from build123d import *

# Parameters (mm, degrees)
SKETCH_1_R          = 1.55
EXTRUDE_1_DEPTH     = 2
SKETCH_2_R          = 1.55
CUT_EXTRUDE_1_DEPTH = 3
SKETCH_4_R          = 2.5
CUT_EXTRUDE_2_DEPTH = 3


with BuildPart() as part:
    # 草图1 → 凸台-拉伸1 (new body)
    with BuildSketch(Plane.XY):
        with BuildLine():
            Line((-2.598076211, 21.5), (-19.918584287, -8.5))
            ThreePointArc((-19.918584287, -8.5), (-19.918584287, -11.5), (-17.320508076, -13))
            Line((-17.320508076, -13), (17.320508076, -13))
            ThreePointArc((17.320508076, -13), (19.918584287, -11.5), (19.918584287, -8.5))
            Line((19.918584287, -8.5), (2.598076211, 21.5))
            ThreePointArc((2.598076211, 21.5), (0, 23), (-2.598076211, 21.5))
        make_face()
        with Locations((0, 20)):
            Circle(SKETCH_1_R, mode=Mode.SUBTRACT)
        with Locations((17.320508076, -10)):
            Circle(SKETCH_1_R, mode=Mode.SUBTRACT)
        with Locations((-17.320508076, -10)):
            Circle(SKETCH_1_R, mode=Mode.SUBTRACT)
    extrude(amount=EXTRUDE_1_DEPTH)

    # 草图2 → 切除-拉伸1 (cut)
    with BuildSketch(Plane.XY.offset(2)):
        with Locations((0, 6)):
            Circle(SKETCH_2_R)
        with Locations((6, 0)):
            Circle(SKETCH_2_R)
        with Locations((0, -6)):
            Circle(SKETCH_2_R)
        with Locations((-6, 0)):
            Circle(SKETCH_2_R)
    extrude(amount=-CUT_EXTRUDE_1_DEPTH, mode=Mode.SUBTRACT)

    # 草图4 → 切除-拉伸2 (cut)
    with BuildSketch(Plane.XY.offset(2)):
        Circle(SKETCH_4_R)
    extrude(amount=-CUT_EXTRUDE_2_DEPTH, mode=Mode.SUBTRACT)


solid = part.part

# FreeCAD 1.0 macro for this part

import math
import FreeCAD as App
import Part
import Sketcher
from FreeCAD import Vector
Q = App.Units.Quantity

doc = App.newDocument("Part")
body = doc.addObject("PartDesign::Body", "Body")

sketch1 = body.newObject("Sketcher::SketchObject", "Sketch")
sketch1.AttachmentSupport = (doc.getObject("XY_Plane"), [""])
sketch1.MapMode = "FlatFace"
sketch1.addGeometry(Part.LineSegment(Vector(-2.598076, 21.5, 0), Vector(-19.918584, -8.5, 0)), False)
sketch1.addGeometry(Part.ArcOfCircle(Part.Circle(Vector(-17.320508, -10, 0), Vector(0, 0, 1), 3), math.radians(150), math.radians(270)), False)
sketch1.addGeometry(Part.LineSegment(Vector(-17.320508, -13, 0), Vector(17.320508, -13, 0)), False)
sketch1.addGeometry(Part.ArcOfCircle(Part.Circle(Vector(17.320508, -10, 0), Vector(0, 0, 1), 3), math.radians(-90), math.radians(30)), False)
sketch1.addGeometry(Part.LineSegment(Vector(19.918584, -8.5, 0), Vector(2.598076, 21.5, 0)), False)
sketch1.addGeometry(Part.ArcOfCircle(Part.Circle(Vector(0, 20, 0), Vector(0, 0, 1), 3), math.radians(30), math.radians(150)), False)
sketch1.addGeometry(Part.Circle(Vector(-17.320508, -10, 0), Vector(0, 0, 1), 1.55), False)
sketch1.addGeometry(Part.Circle(Vector(17.320508, -10, 0), Vector(0, 0, 1), 1.55), False)
sketch1.addGeometry(Part.Circle(Vector(0, 20, 0), Vector(0, 0, 1), 1.55), False)
sketch1.addConstraint(Sketcher.Constraint("Tangent", 0, 2, 1, 1))
sketch1.addConstraint(Sketcher.Constraint("Tangent", 1, 2, 2, 1))
sketch1.addConstraint(Sketcher.Constraint("Tangent", 2, 2, 3, 1))
sketch1.addConstraint(Sketcher.Constraint("Tangent", 3, 2, 4, 1))
sketch1.addConstraint(Sketcher.Constraint("Tangent", 4, 2, 5, 1))
sketch1.addConstraint(Sketcher.Constraint("Tangent", 5, 2, 0, 1))
sketch1.addConstraint(Sketcher.Constraint("Horizontal", 2))
sketch1.addConstraint(Sketcher.Constraint("Coincident", 6, 3, 1, 3))
sketch1.addConstraint(Sketcher.Constraint("Coincident", 7, 3, 3, 3))
sketch1.addConstraint(Sketcher.Constraint("Coincident", 8, 3, 5, 3))
sketch1.addConstraint(Sketcher.Constraint("Equal", 1, 3))
sketch1.addConstraint(Sketcher.Constraint("Equal", 3, 5))
sketch1.addConstraint(Sketcher.Constraint("Equal", 6, 7))
sketch1.addConstraint(Sketcher.Constraint("Equal", 7, 8))
sketch1.addConstraint(Sketcher.Constraint("Symmetric", 0, 2, 3, 2, -2))
sketch1.addConstraint(Sketcher.Constraint("Radius", 1, 3.0))
sketch1.addConstraint(Sketcher.Constraint("Diameter", 6, 3.1))
sketch1.addConstraint(Sketcher.Constraint("Angle", 0, Q("-120 deg")))
sketch1.addConstraint(Sketcher.Constraint("DistanceY", 1, 3, -1, 1, 10.0))
sketch1.addConstraint(Sketcher.Constraint("DistanceY", -1, 1, 5, 3, 20.0))
pad1 = body.newObject("PartDesign::Pad", "Pad")
pad1.Profile = sketch1
pad1.Length = 2

sketch2 = body.newObject("Sketcher::SketchObject", "Sketch001")
sketch2.AttachmentSupport = (doc.getObject("XY_Plane"), [""])
sketch2.MapMode = "FlatFace"
sketch2.AttachmentOffset = App.Placement(Vector(0, 0, 2), App.Rotation())
sketch2.addGeometry(Part.Circle(Vector(0, 6, 0), Vector(0, 0, 1), 1.55), False)
sketch2.addGeometry(Part.Circle(Vector(6, 0, 0), Vector(0, 0, 1), 1.55), False)
sketch2.addGeometry(Part.Circle(Vector(0, -6, 0), Vector(0, 0, 1), 1.55), False)
sketch2.addGeometry(Part.Circle(Vector(-6, 0, 0), Vector(0, 0, 1), 1.55), False)
sketch2.addConstraint(Sketcher.Constraint("Equal", 0, 1))
sketch2.addConstraint(Sketcher.Constraint("Equal", 1, 2))
sketch2.addConstraint(Sketcher.Constraint("Equal", 2, 3))
sketch2.addConstraint(Sketcher.Constraint("Symmetric", 0, 3, 2, 3, -1, 1))
sketch2.addConstraint(Sketcher.Constraint("Symmetric", 1, 3, 3, 3, -1, 1))
sketch2.addConstraint(Sketcher.Constraint("PointOnObject", 0, 3, -2))
sketch2.addConstraint(Sketcher.Constraint("PointOnObject", 1, 3, -1))
sketch2.addConstraint(Sketcher.Constraint("Diameter", 0, 3.1))
sketch2.addConstraint(Sketcher.Constraint("DistanceY", -1, 1, 0, 3, 6.0))
sketch2.addConstraint(Sketcher.Constraint("DistanceX", -1, 1, 1, 3, 6.0))
pocket1 = body.newObject("PartDesign::Pocket", "Pocket")
pocket1.Profile = sketch2
pocket1.Length = 3

sketch3 = body.newObject("Sketcher::SketchObject", "Sketch002")
sketch3.AttachmentSupport = (doc.getObject("XY_Plane"), [""])
sketch3.MapMode = "FlatFace"
sketch3.AttachmentOffset = App.Placement(Vector(0, 0, 2), App.Rotation())
sketch3.addGeometry(Part.Circle(Vector(0, 0, 0), Vector(0, 0, 1), 2.5), False)
sketch3.addConstraint(Sketcher.Constraint("Coincident", 0, 3, -1, 1))
sketch3.addConstraint(Sketcher.Constraint("Diameter", 0, 5.0))
pocket2 = body.newObject("PartDesign::Pocket", "Pocket001")
pocket2.Profile = sketch3
pocket2.Length = 3

doc.recompute()
